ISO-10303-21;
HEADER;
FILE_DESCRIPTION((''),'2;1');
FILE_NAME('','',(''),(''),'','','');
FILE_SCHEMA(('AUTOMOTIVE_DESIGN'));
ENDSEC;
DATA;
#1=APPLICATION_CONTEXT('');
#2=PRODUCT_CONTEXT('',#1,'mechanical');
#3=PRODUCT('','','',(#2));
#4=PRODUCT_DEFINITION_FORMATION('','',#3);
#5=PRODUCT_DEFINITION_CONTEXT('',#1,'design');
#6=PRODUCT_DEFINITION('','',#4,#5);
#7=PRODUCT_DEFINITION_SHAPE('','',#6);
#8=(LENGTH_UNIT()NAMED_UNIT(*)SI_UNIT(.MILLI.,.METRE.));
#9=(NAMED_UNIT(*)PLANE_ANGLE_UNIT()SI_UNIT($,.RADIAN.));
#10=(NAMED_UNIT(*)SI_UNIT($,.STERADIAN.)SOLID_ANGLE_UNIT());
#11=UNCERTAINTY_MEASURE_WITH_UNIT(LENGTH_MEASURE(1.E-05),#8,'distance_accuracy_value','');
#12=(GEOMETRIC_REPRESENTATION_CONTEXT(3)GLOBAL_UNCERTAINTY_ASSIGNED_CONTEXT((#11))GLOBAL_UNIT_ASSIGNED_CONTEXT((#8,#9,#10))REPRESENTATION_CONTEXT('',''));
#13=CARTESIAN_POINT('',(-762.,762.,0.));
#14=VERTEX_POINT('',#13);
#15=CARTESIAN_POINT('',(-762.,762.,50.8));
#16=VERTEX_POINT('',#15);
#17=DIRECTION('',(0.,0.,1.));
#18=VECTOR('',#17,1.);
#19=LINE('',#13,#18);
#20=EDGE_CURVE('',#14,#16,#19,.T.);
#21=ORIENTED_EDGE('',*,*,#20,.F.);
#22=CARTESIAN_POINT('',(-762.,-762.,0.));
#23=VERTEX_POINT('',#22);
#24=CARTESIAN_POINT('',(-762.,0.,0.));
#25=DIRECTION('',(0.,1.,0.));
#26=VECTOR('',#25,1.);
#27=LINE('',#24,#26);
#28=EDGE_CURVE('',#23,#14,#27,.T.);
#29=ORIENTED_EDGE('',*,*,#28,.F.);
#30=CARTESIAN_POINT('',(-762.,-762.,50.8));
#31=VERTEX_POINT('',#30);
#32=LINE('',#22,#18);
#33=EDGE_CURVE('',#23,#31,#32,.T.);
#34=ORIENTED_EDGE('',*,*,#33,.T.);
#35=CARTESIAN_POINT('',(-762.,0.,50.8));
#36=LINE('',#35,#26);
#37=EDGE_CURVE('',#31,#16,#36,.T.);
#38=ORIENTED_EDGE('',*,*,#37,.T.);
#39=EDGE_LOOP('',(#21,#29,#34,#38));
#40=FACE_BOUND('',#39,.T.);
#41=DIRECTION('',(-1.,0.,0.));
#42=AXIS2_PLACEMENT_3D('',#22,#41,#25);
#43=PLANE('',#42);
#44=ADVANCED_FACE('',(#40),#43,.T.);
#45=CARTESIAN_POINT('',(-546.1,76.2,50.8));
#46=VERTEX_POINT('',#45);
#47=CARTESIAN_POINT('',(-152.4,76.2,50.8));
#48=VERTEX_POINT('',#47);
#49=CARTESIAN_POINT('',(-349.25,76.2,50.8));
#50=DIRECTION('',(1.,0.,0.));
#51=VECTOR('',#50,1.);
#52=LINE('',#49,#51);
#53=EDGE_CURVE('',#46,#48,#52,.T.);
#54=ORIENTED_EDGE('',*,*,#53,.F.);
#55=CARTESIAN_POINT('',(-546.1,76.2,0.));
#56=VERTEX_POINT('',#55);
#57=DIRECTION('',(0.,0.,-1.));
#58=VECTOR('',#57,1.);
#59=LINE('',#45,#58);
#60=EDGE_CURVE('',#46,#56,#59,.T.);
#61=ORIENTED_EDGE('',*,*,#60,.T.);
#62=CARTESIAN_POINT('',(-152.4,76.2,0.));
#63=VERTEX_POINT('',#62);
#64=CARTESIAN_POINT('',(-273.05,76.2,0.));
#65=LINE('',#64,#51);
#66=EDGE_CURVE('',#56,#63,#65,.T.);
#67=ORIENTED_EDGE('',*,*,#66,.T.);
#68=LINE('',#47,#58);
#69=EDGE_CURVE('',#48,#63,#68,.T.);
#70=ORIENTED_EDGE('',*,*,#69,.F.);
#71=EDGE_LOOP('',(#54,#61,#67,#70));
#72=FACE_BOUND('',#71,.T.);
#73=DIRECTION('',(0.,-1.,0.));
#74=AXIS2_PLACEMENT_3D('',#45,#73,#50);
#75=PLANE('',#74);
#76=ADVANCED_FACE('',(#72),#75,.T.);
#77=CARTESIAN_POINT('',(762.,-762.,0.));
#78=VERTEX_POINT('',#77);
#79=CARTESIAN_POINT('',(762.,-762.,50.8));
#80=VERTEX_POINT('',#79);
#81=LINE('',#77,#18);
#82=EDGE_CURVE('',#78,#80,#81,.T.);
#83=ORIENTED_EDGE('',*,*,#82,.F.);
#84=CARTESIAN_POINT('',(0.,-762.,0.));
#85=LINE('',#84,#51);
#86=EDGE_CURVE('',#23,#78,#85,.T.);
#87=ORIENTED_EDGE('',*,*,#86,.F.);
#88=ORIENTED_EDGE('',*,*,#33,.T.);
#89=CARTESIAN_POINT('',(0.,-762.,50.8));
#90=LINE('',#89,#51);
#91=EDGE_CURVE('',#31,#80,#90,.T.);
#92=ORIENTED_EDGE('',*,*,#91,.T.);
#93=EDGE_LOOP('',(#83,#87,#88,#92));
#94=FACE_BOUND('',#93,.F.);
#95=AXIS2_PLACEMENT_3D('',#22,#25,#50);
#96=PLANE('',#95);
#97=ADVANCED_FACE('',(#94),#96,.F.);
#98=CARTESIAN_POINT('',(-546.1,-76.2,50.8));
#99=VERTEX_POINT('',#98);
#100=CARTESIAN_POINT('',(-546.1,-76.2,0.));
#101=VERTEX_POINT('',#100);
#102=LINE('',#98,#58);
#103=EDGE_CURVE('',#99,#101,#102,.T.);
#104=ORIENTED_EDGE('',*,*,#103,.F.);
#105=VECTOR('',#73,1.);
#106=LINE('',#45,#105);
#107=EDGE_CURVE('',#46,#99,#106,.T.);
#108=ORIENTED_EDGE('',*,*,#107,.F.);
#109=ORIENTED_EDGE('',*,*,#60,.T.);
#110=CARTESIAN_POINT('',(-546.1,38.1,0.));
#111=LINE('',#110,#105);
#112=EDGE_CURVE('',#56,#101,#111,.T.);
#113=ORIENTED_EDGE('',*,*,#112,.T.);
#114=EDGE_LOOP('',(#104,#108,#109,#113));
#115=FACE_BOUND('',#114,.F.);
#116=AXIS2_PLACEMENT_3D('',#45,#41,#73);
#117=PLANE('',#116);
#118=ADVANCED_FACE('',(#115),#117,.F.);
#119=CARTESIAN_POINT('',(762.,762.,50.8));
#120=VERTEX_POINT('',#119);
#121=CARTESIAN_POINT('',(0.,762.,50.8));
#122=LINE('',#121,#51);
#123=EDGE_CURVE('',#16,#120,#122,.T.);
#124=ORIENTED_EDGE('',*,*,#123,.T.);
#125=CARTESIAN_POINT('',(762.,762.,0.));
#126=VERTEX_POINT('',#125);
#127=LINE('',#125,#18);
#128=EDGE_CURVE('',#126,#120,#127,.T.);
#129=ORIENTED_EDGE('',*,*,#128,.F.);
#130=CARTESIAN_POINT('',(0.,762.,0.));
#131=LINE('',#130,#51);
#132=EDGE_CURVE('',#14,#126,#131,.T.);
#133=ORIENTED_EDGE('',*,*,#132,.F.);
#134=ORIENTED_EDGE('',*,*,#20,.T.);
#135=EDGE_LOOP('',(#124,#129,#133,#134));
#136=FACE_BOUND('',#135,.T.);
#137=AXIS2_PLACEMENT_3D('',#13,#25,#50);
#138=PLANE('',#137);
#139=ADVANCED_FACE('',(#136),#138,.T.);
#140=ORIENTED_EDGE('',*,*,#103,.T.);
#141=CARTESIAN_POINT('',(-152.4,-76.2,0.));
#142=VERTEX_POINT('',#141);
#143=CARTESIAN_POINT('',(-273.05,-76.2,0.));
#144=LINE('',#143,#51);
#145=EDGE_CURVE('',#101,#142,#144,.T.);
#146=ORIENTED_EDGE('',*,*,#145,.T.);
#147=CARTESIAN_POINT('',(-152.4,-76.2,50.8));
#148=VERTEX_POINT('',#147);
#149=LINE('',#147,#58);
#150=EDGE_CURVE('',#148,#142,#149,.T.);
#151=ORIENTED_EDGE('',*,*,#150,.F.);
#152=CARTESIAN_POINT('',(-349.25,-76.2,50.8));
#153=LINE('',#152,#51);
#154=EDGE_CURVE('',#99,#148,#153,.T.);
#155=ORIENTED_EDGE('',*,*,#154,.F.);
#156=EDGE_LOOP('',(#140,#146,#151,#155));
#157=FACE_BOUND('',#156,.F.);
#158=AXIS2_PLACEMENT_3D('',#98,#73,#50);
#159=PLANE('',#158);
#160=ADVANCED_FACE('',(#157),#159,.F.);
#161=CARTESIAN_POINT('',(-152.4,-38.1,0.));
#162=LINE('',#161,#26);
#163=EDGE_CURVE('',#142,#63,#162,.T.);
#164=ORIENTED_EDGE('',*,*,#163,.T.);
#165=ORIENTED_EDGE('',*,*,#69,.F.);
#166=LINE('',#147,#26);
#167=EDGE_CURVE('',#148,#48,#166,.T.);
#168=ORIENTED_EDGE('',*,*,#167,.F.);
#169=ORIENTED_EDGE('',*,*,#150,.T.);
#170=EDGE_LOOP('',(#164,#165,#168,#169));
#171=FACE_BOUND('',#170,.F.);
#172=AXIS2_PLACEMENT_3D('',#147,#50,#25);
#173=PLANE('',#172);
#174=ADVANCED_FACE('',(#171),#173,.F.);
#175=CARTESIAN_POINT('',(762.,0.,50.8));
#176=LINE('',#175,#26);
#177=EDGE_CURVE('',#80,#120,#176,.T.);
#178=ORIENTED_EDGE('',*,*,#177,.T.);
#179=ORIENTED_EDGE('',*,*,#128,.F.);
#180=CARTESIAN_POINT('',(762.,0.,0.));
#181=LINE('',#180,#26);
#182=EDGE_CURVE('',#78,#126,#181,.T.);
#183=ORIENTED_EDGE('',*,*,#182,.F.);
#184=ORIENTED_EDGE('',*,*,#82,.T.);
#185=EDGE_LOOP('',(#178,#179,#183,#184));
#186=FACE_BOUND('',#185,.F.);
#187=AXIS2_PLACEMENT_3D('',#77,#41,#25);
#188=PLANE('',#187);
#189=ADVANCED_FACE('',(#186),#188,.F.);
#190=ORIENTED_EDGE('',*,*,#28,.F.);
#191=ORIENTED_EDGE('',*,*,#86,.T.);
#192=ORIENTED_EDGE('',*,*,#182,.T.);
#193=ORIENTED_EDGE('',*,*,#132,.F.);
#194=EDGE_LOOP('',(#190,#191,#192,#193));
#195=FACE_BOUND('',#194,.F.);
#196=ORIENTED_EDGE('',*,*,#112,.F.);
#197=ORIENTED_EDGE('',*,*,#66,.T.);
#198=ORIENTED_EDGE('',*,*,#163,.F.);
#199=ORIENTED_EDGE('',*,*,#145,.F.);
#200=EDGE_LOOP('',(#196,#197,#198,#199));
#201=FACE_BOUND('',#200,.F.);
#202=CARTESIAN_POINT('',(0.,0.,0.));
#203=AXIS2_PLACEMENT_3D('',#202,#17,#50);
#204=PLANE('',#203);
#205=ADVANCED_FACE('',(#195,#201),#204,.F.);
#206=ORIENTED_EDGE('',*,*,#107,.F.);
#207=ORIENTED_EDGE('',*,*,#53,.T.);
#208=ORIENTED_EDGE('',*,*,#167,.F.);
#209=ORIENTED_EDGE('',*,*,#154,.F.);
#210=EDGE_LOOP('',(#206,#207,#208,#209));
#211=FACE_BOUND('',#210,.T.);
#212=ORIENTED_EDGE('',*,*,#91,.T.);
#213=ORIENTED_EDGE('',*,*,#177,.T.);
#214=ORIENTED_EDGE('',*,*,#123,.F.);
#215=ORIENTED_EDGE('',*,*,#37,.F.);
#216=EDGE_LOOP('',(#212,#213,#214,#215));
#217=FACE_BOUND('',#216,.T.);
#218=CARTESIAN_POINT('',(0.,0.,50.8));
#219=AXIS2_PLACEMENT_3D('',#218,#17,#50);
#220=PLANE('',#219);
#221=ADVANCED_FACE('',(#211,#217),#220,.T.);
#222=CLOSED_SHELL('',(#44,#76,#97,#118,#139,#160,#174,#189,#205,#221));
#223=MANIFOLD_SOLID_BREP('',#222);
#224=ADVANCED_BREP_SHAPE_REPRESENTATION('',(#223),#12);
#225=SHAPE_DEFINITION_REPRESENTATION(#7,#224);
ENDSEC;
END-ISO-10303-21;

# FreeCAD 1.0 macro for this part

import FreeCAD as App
import Part
import Sketcher
from FreeCAD import Vector
Q = App.Units.Quantity


def add_polygon(sketch, points):
    """Adds a closed chain of lines whose ends are joined by coincident constraints."""
    first, n = sketch.GeometryCount, len(points)
    for a, b in zip(points, points[1:] + points[:1]):
        sketch.addGeometry(Part.LineSegment(App.Vector(*a, 0), App.Vector(*b, 0)), False)
    for i in range(n):
        sketch.addConstraint(Sketcher.Constraint("Coincident", first + i, 2, first + (i + 1) % n, 1))

doc = App.newDocument("Part")
body = doc.addObject("PartDesign::Body", "Body")

# Sketch on XY plane
sketch1 = body.newObject("Sketcher::SketchObject", "Sketch")
sketch1.AttachmentSupport = (doc.getObject("XY_Plane"), [""])
sketch1.MapMode = "FlatFace"
add_polygon(sketch1, [(-762, 762), (-762, -762), (762, -762), (762, 762)])  # lines 0-3
sketch1.addConstraint([
    Sketcher.Constraint("Vertical", 0),
    Sketcher.Constraint("Horizontal", 1),
    Sketcher.Constraint("Vertical", 2),
    Sketcher.Constraint("Horizontal", 3),
    Sketcher.Constraint("Symmetric", 0, 2, 2, 2, -1, 1),
    Sketcher.Constraint("Equal", 3, 0),
    Sketcher.Constraint("DistanceX", 1, 1, 1, 2, Q("60 in")),
])
pad1 = body.newObject("PartDesign::Pad", "Pad")
pad1.Profile = sketch1
pad1.Length = Q("2 in")

# Sketch on XY plane
sketch2 = body.newObject("Sketcher::SketchObject", "Sketch001")
sketch2.AttachmentSupport = (doc.getObject("XY_Plane"), [""])
sketch2.MapMode = "FlatFace"
sketch2.AttachmentOffset = App.Placement(Vector(0, 0, 2 * 25.4), App.Rotation())
add_polygon(sketch2, [(-546, -76), (-152, -76), (-152, 76), (-546, 76)])  # lines 0-3
sketch2.addConstraint([
    Sketcher.Constraint("Horizontal", 0),
    Sketcher.Constraint("Vertical", 1),
    Sketcher.Constraint("Horizontal", 2),
    Sketcher.Constraint("Vertical", 3),
    Sketcher.Constraint("DistanceY", 1, 1, 1, 2, Q("6 in")),
    Sketcher.Constraint("DistanceX", 0, 1, 0, 2, Q("15.5 in")),
    Sketcher.Constraint("DistanceX", 0, 2, -1, 1, Q("6 in")),
    Sketcher.Constraint("DistanceY", 0, 2, -1, 1, Q("3 in")),
])
pocket1 = body.newObject("PartDesign::Pocket", "Pocket")
pocket1.Profile = sketch2
pocket1.Length = Q("12.4 in")

doc.recompute()
